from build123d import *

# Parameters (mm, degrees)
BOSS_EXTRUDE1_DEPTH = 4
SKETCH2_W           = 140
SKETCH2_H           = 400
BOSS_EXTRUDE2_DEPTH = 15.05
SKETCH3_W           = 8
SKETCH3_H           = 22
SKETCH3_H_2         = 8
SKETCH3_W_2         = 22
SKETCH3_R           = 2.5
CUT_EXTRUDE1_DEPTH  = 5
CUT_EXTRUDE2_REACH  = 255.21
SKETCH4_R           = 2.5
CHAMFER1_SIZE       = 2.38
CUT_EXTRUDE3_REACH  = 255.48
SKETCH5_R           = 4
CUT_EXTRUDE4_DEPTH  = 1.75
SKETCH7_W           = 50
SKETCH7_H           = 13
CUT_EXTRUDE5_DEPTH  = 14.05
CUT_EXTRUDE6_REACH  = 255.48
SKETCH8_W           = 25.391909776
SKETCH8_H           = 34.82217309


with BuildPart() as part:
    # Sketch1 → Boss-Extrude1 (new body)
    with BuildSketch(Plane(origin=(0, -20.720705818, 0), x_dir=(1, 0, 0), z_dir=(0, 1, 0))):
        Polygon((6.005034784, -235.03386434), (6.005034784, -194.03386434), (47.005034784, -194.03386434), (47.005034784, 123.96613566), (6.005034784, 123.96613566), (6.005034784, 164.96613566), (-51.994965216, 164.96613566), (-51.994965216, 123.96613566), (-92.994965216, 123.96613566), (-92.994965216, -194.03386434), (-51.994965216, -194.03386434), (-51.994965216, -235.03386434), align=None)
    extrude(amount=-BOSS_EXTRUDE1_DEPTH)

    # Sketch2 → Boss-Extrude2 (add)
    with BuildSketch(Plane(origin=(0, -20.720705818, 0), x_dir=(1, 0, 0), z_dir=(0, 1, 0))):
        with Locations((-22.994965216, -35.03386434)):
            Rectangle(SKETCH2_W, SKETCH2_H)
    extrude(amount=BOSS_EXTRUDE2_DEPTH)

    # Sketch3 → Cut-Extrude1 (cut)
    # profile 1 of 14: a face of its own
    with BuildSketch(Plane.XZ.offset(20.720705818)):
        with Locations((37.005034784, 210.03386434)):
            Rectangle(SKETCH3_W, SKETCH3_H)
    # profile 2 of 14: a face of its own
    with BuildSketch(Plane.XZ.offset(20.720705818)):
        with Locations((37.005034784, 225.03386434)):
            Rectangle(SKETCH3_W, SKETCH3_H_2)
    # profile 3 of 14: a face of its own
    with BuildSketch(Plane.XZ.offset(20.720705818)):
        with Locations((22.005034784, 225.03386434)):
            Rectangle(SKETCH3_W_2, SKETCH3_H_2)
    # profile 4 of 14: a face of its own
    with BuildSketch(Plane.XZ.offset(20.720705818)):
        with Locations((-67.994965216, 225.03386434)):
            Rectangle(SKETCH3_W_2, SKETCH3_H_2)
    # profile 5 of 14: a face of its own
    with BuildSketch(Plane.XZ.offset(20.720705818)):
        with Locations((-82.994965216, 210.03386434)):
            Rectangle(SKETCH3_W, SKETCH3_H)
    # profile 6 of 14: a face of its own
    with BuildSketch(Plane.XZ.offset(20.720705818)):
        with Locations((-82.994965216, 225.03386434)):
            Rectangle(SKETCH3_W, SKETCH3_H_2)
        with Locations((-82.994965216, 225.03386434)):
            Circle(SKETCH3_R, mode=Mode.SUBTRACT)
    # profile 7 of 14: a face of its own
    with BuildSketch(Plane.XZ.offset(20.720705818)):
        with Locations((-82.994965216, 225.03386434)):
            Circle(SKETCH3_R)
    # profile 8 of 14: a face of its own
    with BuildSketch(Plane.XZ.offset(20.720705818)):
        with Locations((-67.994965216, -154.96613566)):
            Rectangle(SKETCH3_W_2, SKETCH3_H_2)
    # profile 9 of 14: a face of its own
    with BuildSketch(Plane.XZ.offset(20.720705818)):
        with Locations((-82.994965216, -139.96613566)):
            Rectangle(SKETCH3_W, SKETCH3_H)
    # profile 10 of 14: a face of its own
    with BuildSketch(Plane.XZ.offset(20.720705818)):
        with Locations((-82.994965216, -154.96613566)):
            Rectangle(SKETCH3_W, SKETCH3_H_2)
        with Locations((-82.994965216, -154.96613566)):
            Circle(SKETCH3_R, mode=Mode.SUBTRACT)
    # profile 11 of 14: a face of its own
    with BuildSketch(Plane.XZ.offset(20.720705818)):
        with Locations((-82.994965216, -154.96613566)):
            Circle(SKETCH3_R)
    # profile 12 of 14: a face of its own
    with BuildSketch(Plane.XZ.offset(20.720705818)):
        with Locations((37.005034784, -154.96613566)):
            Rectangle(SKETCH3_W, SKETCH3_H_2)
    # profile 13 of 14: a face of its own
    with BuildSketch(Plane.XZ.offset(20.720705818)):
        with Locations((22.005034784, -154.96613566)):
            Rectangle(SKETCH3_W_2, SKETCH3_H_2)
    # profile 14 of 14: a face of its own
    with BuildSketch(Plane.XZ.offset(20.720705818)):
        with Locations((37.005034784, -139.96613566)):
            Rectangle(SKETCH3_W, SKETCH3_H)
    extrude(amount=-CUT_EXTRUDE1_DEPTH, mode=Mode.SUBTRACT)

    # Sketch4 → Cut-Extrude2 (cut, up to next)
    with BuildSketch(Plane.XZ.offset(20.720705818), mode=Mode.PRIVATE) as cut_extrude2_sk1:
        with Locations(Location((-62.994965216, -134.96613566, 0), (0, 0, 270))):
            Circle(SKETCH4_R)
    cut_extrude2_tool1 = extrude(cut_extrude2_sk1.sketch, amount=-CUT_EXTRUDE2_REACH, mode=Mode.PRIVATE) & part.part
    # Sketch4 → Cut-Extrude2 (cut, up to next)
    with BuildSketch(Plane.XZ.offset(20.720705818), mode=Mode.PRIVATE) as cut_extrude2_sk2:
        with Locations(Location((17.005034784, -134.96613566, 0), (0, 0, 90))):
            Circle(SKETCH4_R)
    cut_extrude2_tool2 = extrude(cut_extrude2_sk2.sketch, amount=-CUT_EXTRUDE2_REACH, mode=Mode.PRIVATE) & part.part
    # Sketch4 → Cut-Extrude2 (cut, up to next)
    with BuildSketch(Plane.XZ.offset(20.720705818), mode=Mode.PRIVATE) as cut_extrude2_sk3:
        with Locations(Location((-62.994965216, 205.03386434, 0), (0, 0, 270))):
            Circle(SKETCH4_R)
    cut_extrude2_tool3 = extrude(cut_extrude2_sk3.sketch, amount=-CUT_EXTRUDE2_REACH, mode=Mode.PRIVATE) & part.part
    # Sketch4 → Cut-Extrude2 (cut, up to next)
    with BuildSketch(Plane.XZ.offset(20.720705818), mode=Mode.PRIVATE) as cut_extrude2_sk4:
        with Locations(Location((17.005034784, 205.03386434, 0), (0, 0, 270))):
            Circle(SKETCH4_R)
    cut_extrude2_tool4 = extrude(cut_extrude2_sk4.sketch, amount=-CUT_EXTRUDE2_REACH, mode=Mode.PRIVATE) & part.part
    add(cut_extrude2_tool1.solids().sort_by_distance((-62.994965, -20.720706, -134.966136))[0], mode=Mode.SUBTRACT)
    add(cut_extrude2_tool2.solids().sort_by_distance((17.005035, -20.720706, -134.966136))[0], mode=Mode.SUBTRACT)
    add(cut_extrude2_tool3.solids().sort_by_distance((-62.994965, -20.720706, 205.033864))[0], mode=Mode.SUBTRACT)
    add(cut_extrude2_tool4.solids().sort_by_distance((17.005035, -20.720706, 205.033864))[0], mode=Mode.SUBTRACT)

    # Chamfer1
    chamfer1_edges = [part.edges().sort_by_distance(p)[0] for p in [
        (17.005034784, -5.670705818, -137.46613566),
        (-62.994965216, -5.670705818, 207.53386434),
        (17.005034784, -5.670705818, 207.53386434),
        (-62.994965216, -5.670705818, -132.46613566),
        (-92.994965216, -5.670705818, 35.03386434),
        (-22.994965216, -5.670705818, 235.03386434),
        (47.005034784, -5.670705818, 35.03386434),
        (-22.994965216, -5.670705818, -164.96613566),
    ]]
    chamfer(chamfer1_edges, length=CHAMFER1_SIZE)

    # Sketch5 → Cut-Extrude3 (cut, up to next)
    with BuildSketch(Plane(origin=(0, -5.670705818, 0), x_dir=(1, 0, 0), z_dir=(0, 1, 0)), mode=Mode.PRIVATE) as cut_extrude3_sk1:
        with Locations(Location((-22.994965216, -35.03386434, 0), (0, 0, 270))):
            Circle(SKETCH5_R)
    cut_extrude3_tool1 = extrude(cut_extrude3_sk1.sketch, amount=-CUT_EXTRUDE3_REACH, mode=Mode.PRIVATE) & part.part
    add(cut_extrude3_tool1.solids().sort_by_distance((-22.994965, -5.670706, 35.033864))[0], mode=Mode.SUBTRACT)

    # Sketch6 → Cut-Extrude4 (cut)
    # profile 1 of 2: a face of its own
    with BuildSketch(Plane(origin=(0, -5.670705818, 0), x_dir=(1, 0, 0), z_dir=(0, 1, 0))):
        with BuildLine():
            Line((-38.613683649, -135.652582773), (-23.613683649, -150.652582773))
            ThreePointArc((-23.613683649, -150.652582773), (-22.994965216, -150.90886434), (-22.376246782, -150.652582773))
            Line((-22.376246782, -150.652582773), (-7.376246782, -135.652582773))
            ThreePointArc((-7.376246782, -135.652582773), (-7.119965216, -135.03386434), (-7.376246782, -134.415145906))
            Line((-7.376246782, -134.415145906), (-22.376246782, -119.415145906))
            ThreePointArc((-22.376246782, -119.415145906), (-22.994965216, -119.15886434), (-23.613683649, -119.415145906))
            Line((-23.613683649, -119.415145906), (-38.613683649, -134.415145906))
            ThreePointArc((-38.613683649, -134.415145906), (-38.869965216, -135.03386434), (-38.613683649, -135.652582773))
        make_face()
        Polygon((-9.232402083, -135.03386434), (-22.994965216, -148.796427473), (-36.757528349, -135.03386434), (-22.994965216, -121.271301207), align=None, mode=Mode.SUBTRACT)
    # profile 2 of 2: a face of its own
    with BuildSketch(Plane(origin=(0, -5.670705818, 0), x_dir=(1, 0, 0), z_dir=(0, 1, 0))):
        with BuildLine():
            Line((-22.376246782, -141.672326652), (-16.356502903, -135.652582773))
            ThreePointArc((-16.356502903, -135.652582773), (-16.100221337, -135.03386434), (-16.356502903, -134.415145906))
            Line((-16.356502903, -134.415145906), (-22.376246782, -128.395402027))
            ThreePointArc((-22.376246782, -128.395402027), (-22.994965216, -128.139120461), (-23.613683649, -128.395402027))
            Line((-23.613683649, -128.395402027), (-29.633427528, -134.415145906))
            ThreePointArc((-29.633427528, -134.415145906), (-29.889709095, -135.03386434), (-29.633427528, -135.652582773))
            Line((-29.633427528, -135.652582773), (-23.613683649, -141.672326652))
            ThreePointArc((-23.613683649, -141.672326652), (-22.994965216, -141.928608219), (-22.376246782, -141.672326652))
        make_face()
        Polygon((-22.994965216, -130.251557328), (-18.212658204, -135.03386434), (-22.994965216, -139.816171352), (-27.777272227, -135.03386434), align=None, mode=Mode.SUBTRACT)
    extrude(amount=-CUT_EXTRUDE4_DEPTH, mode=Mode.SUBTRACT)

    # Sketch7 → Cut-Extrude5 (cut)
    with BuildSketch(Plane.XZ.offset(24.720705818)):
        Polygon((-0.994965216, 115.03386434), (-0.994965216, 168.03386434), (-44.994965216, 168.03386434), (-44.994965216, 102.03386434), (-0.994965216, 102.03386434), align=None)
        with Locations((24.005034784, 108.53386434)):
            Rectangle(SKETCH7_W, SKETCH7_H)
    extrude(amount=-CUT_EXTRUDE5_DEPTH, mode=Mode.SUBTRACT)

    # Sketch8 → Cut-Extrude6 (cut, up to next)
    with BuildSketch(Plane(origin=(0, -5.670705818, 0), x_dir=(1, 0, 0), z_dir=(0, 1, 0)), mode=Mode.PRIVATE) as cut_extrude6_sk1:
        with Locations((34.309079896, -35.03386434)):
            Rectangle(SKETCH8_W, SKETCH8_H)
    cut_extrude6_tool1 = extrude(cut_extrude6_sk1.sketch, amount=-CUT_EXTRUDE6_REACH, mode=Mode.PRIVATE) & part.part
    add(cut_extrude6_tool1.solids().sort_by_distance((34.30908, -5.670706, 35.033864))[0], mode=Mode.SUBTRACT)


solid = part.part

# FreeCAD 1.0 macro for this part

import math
import FreeCAD as App
import Part
import Sketcher


def edges_at(feature, points):
    """Names of the edges that pass closest to the given points."""
    edges = feature.Shape.Edges
    near = lambda p: min(range(len(edges)), key=lambda i: edges[i].distToShape(Part.Vertex(*p))[0])
    return sorted({f"Edge{near(p) + 1}" for p in points})

doc = App.newDocument("Part")
body = doc.addObject("PartDesign::Body", "Body")

sketch1 = doc.addObject("Sketcher::SketchObject", "Sketch")
body.addObject(sketch1)
sketch1.AttachmentSupport = (doc.XZ_Plane, [""])
sketch1.MapMode = "FlatFace"
sketch1.AttachmentOffset = App.Placement(App.Vector(0, 0, 20.720706), App.Rotation())
sketch1.addGeometry(Part.LineSegment(App.Vector(6.005035, 235.033864, 0), App.Vector(6.005035, 194.033864, 0)), False)
sketch1.addGeometry(Part.LineSegment(App.Vector(6.005035, 194.033864, 0), App.Vector(47.005035, 194.033864, 0)), False)
sketch1.addGeometry(Part.LineSegment(App.Vector(47.005035, 194.033864, 0), App.Vector(47.005035, -123.966136, 0)), False)
sketch1.addGeometry(Part.LineSegment(App.Vector(47.005035, -123.966136, 0), App.Vector(6.005035, -123.966136, 0)), False)
sketch1.addGeometry(Part.LineSegment(App.Vector(6.005035, -123.966136, 0), App.Vector(6.005035, -164.966136, 0)), False)
sketch1.addGeometry(Part.LineSegment(App.Vector(6.005035, -164.966136, 0), App.Vector(-51.994965, -164.966136, 0)), False)
sketch1.addGeometry(Part.LineSegment(App.Vector(-51.994965, -164.966136, 0), App.Vector(-51.994965, -123.966136, 0)), False)
sketch1.addGeometry(Part.LineSegment(App.Vector(-51.994965, -123.966136, 0), App.Vector(-92.994965, -123.966136, 0)), False)
sketch1.addGeometry(Part.LineSegment(App.Vector(-92.994965, -123.966136, 0), App.Vector(-92.994965, 194.033864, 0)), False)
sketch1.addGeometry(Part.LineSegment(App.Vector(-92.994965, 194.033864, 0), App.Vector(-51.994965, 194.033864, 0)), False)
sketch1.addGeometry(Part.LineSegment(App.Vector(-51.994965, 194.033864, 0), App.Vector(-51.994965, 235.033864, 0)), False)
sketch1.addGeometry(Part.LineSegment(App.Vector(-51.994965, 235.033864, 0), App.Vector(6.005035, 235.033864, 0)), False)
sketch1.addConstraint(Sketcher.Constraint("Coincident", 0, 2, 1, 1))
sketch1.addConstraint(Sketcher.Constraint("Coincident", 1, 2, 2, 1))
sketch1.addConstraint(Sketcher.Constraint("Coincident", 2, 2, 3, 1))
sketch1.addConstraint(Sketcher.Constraint("Coincident", 3, 2, 4, 1))
sketch1.addConstraint(Sketcher.Constraint("Coincident", 4, 2, 5, 1))
sketch1.addConstraint(Sketcher.Constraint("Coincident", 5, 2, 6, 1))
sketch1.addConstraint(Sketcher.Constraint("Coincident", 6, 2, 7, 1))
sketch1.addConstraint(Sketcher.Constraint("Coincident", 7, 2, 8, 1))
sketch1.addConstraint(Sketcher.Constraint("Coincident", 8, 2, 9, 1))
sketch1.addConstraint(Sketcher.Constraint("Coincident", 9, 2, 10, 1))
sketch1.addConstraint(Sketcher.Constraint("Coincident", 10, 2, 11, 1))
sketch1.addConstraint(Sketcher.Constraint("Coincident", 11, 2, 0, 1))
sketch1.addConstraint(Sketcher.Constraint("Vertical", 0))
sketch1.addConstraint(Sketcher.Constraint("Horizontal", 1))
sketch1.addConstraint(Sketcher.Constraint("Vertical", 2))
sketch1.addConstraint(Sketcher.Constraint("Horizontal", 3))
sketch1.addConstraint(Sketcher.Constraint("Vertical", 4))
sketch1.addConstraint(Sketcher.Constraint("Horizontal", 5))
sketch1.addConstraint(Sketcher.Constraint("Vertical", 6))
sketch1.addConstraint(Sketcher.Constraint("Horizontal", 7))
sketch1.addConstraint(Sketcher.Constraint("Vertical", 8))
sketch1.addConstraint(Sketcher.Constraint("Horizontal", 9))
sketch1.addConstraint(Sketcher.Constraint("Vertical", 10))
sketch1.addConstraint(Sketcher.Constraint("Horizontal", 11))
sketch1.addConstraint(Sketcher.Constraint("Horizontal", 3, 2, 6, 2))
sketch1.addConstraint(Sketcher.Constraint("Horizontal", 1, 2, 8, 2))
sketch1.addConstraint(Sketcher.Constraint("Vertical", 0, 2, 3, 2))
sketch1.addConstraint(Sketcher.Constraint("Vertical", 6, 2, 9, 2))
sketch1.addConstraint(Sketcher.Constraint("Equal", 3, 7))
sketch1.addConstraint(Sketcher.Constraint("Equal", 9, 0))
sketch1.addConstraint(Sketcher.Constraint("Equal", 0, 4))
sketch1.addConstraint(Sketcher.Constraint("DistanceX", 1, 1, 1, 2, 41.0))
sketch1.addConstraint(Sketcher.Constraint("DistanceX", 5, 2, 5, 1, 58.0))
sketch1.addConstraint(Sketcher.Constraint("DistanceY", 2, 2, 2, 1, 318.0))
sketch1.addConstraint(Sketcher.Constraint("DistanceX", -1, 1, 0, 2, 6.005035))
sketch1.addConstraint(Sketcher.Constraint("DistanceY", -1, 1, 0, 2, 194.033864))
pad1 = doc.addObject("PartDesign::Pad", "Pad")
body.addObject(pad1)
pad1.Profile = sketch1
pad1.Length = 4

sketch2 = doc.addObject("Sketcher::SketchObject", "Sketch001")
body.addObject(sketch2)
sketch2.AttachmentSupport = (doc.XZ_Plane, [""])
sketch2.MapMode = "FlatFace"
sketch2.AttachmentOffset = App.Placement(App.Vector(0, 0, 20.720706), App.Rotation())
sketch2.addGeometry(Part.LineSegment(App.Vector(-92.994965, -164.966136, 0), App.Vector(-92.994965, 235.033864, 0)), False)
sketch2.addGeometry(Part.LineSegment(App.Vector(-92.994965, 235.033864, 0), App.Vector(47.005035, 235.033864, 0)), False)
sketch2.addGeometry(Part.LineSegment(App.Vector(47.005035, 235.033864, 0), App.Vector(47.005035, -164.966136, 0)), False)
sketch2.addGeometry(Part.LineSegment(App.Vector(47.005035, -164.966136, 0), App.Vector(-92.994965, -164.966136, 0)), False)
sketch2.addConstraint(Sketcher.Constraint("Coincident", 0, 2, 1, 1))
sketch2.addConstraint(Sketcher.Constraint("Coincident", 1, 2, 2, 1))
sketch2.addConstraint(Sketcher.Constraint("Coincident", 2, 2, 3, 1))
sketch2.addConstraint(Sketcher.Constraint("Coincident", 3, 2, 0, 1))
sketch2.addConstraint(Sketcher.Constraint("Vertical", 0))
sketch2.addConstraint(Sketcher.Constraint("Horizontal", 1))
sketch2.addConstraint(Sketcher.Constraint("Vertical", 2))
sketch2.addConstraint(Sketcher.Constraint("Horizontal", 3))
sketch2.addConstraint(Sketcher.Constraint("DistanceX", 1, 1, 1, 2, 140.0))
sketch2.addConstraint(Sketcher.Constraint("DistanceY", 0, 1, 0, 2, 400.0))
sketch2.addConstraint(Sketcher.Constraint("DistanceX", 0, 2, -1, 1, 92.994965))
sketch2.addConstraint(Sketcher.Constraint("DistanceY", -1, 1, 0, 2, 235.033864))
pad2 = doc.addObject("PartDesign::Pad", "Pad001")
body.addObject(pad2)
pad2.Profile = sketch2
pad2.Length = 15.05
pad2.Reversed = True

sketch3 = doc.addObject("Sketcher::SketchObject", "Sketch002")
body.addObject(sketch3)
sketch3.AttachmentSupport = (doc.XZ_Plane, [""])
sketch3.MapMode = "FlatFace"
sketch3.AttachmentOffset = App.Placement(App.Vector(0, 0, 20.720706), App.Rotation())
sketch3.addGeometry(Part.LineSegment(App.Vector(33.005035, 221.033864, 0), App.Vector(33.005035, 199.033864, 0)), False)
sketch3.addGeometry(Part.LineSegment(App.Vector(33.005035, 199.033864, 0), App.Vector(41.005035, 199.033864, 0)), False)
sketch3.addGeometry(Part.LineSegment(App.Vector(41.005035, 199.033864, 0), App.Vector(41.005035, 229.033864, 0)), False)
sketch3.addGeometry(Part.LineSegment(App.Vector(41.005035, 229.033864, 0), App.Vector(11.005035, 229.033864, 0)), False)
sketch3.addGeometry(Part.LineSegment(App.Vector(11.005035, 229.033864, 0), App.Vector(11.005035, 221.033864, 0)), False)
sketch3.addGeometry(Part.LineSegment(App.Vector(11.005035, 221.033864, 0), App.Vector(33.005035, 221.033864, 0)), False)
sketch3.addGeometry(Part.LineSegment(App.Vector(-78.994965, 221.033864, 0), App.Vector(-56.994965, 221.033864, 0)), False)
sketch3.addGeometry(Part.LineSegment(App.Vector(-56.994965, 221.033864, 0), App.Vector(-56.994965, 229.033864, 0)), False)
sketch3.addGeometry(Part.LineSegment(App.Vector(-56.994965, 229.033864, 0), App.Vector(-86.994965, 229.033864, 0)), False)
sketch3.addGeometry(Part.LineSegment(App.Vector(-86.994965, 229.033864, 0), App.Vector(-86.994965, 199.033864, 0)), False)
sketch3.addGeometry(Part.LineSegment(App.Vector(-86.994965, 199.033864, 0), App.Vector(-78.994965, 199.033864, 0)), False)
sketch3.addGeometry(Part.LineSegment(App.Vector(-78.994965, 199.033864, 0), App.Vector(-78.994965, 221.033864, 0)), False)
sketch3.addGeometry(Part.LineSegment(App.Vector(-56.994965, -158.966136, 0), App.Vector(-56.994965, -150.966136, 0)), False)
sketch3.addGeometry(Part.LineSegment(App.Vector(-56.994965, -150.966136, 0), App.Vector(-78.994965, -150.966136, 0)), False)
sketch3.addGeometry(Part.LineSegment(App.Vector(-78.994965, -150.966136, 0), App.Vector(-78.994965, -128.966136, 0)), False)
sketch3.addGeometry(Part.LineSegment(App.Vector(-78.994965, -128.966136, 0), App.Vector(-86.994965, -128.966136, 0)), False)
sketch3.addGeometry(Part.LineSegment(App.Vector(-86.994965, -128.966136, 0), App.Vector(-86.994965, -158.966136, 0)), False)
sketch3.addGeometry(Part.LineSegment(App.Vector(-86.994965, -158.966136, 0), App.Vector(-56.994965, -158.966136, 0)), False)
sketch3.addGeometry(Part.LineSegment(App.Vector(41.005035, -158.966136, 0), App.Vector(41.005035, -128.966136, 0)), False)
sketch3.addGeometry(Part.LineSegment(App.Vector(41.005035, -128.966136, 0), App.Vector(33.005035, -128.966136, 0)), False)
sketch3.addGeometry(Part.LineSegment(App.Vector(33.005035, -128.966136, 0), App.Vector(33.005035, -150.966136, 0)), False)
sketch3.addGeometry(Part.LineSegment(App.Vector(33.005035, -150.966136, 0), App.Vector(11.005035, -150.966136, 0)), False)
sketch3.addGeometry(Part.LineSegment(App.Vector(11.005035, -150.966136, 0), App.Vector(11.005035, -158.966136, 0)), False)
sketch3.addGeometry(Part.LineSegment(App.Vector(11.005035, -158.966136, 0), App.Vector(41.005035, -158.966136, 0)), False)
sketch3.addConstraint(Sketcher.Constraint("Coincident", 0, 2, 1, 1))
sketch3.addConstraint(Sketcher.Constraint("Coincident", 1, 2, 2, 1))
sketch3.addConstraint(Sketcher.Constraint("Coincident", 2, 2, 3, 1))
sketch3.addConstraint(Sketcher.Constraint("Coincident", 3, 2, 4, 1))
sketch3.addConstraint(Sketcher.Constraint("Coincident", 4, 2, 5, 1))
sketch3.addConstraint(Sketcher.Constraint("Coincident", 5, 2, 0, 1))
sketch3.addConstraint(Sketcher.Constraint("Coincident", 6, 2, 7, 1))
sketch3.addConstraint(Sketcher.Constraint("Coincident", 7, 2, 8, 1))
sketch3.addConstraint(Sketcher.Constraint("Coincident", 8, 2, 9, 1))
sketch3.addConstraint(Sketcher.Constraint("Coincident", 9, 2, 10, 1))
sketch3.addConstraint(Sketcher.Constraint("Coincident", 10, 2, 11, 1))
sketch3.addConstraint(Sketcher.Constraint("Coincident", 11, 2, 6, 1))
sketch3.addConstraint(Sketcher.Constraint("Coincident", 12, 2, 13, 1))
sketch3.addConstraint(Sketcher.Constraint("Coincident", 13, 2, 14, 1))
sketch3.addConstraint(Sketcher.Constraint("Coincident", 14, 2, 15, 1))
sketch3.addConstraint(Sketcher.Constraint("Coincident", 15, 2, 16, 1))
sketch3.addConstraint(Sketcher.Constraint("Coincident", 16, 2, 17, 1))
sketch3.addConstraint(Sketcher.Constraint("Coincident", 17, 2, 12, 1))
sketch3.addConstraint(Sketcher.Constraint("Coincident", 18, 2, 19, 1))
sketch3.addConstraint(Sketcher.Constraint("Coincident", 19, 2, 20, 1))
sketch3.addConstraint(Sketcher.Constraint("Coincident", 20, 2, 21, 1))
sketch3.addConstraint(Sketcher.Constraint("Coincident", 21, 2, 22, 1))
sketch3.addConstraint(Sketcher.Constraint("Coincident", 22, 2, 23, 1))
sketch3.addConstraint(Sketcher.Constraint("Coincident", 23, 2, 18, 1))
sketch3.addConstraint(Sketcher.Constraint("Vertical", 0))
sketch3.addConstraint(Sketcher.Constraint("Horizontal", 1))
sketch3.addConstraint(Sketcher.Constraint("Vertical", 2))
sketch3.addConstraint(Sketcher.Constraint("Horizontal", 3))
sketch3.addConstraint(Sketcher.Constraint("Vertical", 4))
sketch3.addConstraint(Sketcher.Constraint("Horizontal", 5))
sketch3.addConstraint(Sketcher.Constraint("Horizontal", 6))
sketch3.addConstraint(Sketcher.Constraint("Vertical", 7))
sketch3.addConstraint(Sketcher.Constraint("Horizontal", 8))
sketch3.addConstraint(Sketcher.Constraint("Vertical", 9))
sketch3.addConstraint(Sketcher.Constraint("Horizontal", 10))
sketch3.addConstraint(Sketcher.Constraint("Vertical", 11))
sketch3.addConstraint(Sketcher.Constraint("Vertical", 12))
sketch3.addConstraint(Sketcher.Constraint("Horizontal", 13))
sketch3.addConstraint(Sketcher.Constraint("Vertical", 14))
sketch3.addConstraint(Sketcher.Constraint("Horizontal", 15))
sketch3.addConstraint(Sketcher.Constraint("Vertical", 16))
sketch3.addConstraint(Sketcher.Constraint("Horizontal", 17))
sketch3.addConstraint(Sketcher.Constraint("Vertical", 18))
sketch3.addConstraint(Sketcher.Constraint("Horizontal", 19))
sketch3.addConstraint(Sketcher.Constraint("Vertical", 20))
sketch3.addConstraint(Sketcher.Constraint("Horizontal", 21))
sketch3.addConstraint(Sketcher.Constraint("Vertical", 22))
sketch3.addConstraint(Sketcher.Constraint("Horizontal", 23))
sketch3.addConstraint(Sketcher.Constraint("Horizontal", 5, 2, 6, 2))
sketch3.addConstraint(Sketcher.Constraint("Horizontal", 3, 2, 7, 2))
sketch3.addConstraint(Sketcher.Constraint("Horizontal", 1, 2, 9, 2))
sketch3.addConstraint(Sketcher.Constraint("Horizontal", 15, 2, 18, 2))
sketch3.addConstraint(Sketcher.Constraint("Horizontal", 13, 2, 20, 2))
sketch3.addConstraint(Sketcher.Constraint("Horizontal", 17, 2, 22, 2))
sketch3.addConstraint(Sketcher.Constraint("Vertical", 7, 2, 12, 2))
sketch3.addConstraint(Sketcher.Constraint("Vertical", 11, 2, 13, 2))
sketch3.addConstraint(Sketcher.Constraint("Vertical", 9, 2, 15, 2))
sketch3.addConstraint(Sketcher.Constraint("Vertical", 2, 2, 18, 2))
sketch3.addConstraint(Sketcher.Constraint("Vertical", 5, 2, 19, 2))
sketch3.addConstraint(Sketcher.Constraint("Vertical", 4, 2, 21, 2))
sketch3.addConstraint(Sketcher.Constraint("Equal", 5, 6))
sketch3.addConstraint(Sketcher.Constraint("Equal", 3, 8))
sketch3.addConstraint(Sketcher.Constraint("Equal", 21, 0))
sketch3.addConstraint(Sketcher.Constraint("Equal", 23, 2))
sketch3.addConstraint(Sketcher.Constraint("Equal", 7, 12))
sketch3.addConstraint(Sketcher.Constraint("Equal", 11, 14))
sketch3.addConstraint(Sketcher.Constraint("DistanceX", 1, 1, 1, 2, 8.0))
sketch3.addConstraint(Sketcher.Constraint("DistanceX", 3, 2, 3, 1, 30.0))
sketch3.addConstraint(Sketcher.Constraint("DistanceX", 6, 2, 4, 2, 68.0))
sketch3.addConstraint(Sketcher.Constraint("DistanceY", 12, 2, 10, 2, 350.0))
sketch3.addConstraint(Sketcher.Constraint("DistanceX", -1, 1, 0, 2, 33.005035))
sketch3.addConstraint(Sketcher.Constraint("DistanceY", -1, 1, 0, 2, 199.033864))
pocket1 = doc.addObject("PartDesign::Pocket", "Pocket")
body.addObject(pocket1)
pocket1.Profile = sketch3
pocket1.Length = 5

sketch4 = doc.addObject("Sketcher::SketchObject", "Sketch003")
body.addObject(sketch4)
sketch4.AttachmentSupport = (doc.XZ_Plane, [""])
sketch4.MapMode = "FlatFace"
sketch4.AttachmentOffset = App.Placement(App.Vector(0, 0, 20.720706), App.Rotation())
sketch4.addGeometry(Part.Circle(App.Vector(-62.994965, -134.966136, 0), App.Vector(0, 0, 1), 2.5), False)
sketch4.addConstraint(Sketcher.Constraint("Diameter", 0, 5.0))
sketch4.addConstraint(Sketcher.Constraint("DistanceX", 0, 3, -1, 1, 62.994965))
sketch4.addConstraint(Sketcher.Constraint("DistanceY", 0, 3, -1, 1, 134.966136))
pocket2 = doc.addObject("PartDesign::Pocket", "Pocket001")
body.addObject(pocket2)
pocket2.Profile = sketch4
pocket2.Type = "UpToFirst"

sketch5 = doc.addObject("Sketcher::SketchObject", "Sketch004")
body.addObject(sketch5)
sketch5.AttachmentSupport = (doc.XZ_Plane, [""])
sketch5.MapMode = "FlatFace"
sketch5.AttachmentOffset = App.Placement(App.Vector(0, 0, 20.720706), App.Rotation())
sketch5.addGeometry(Part.Circle(App.Vector(17.005035, -134.966136, 0), App.Vector(0, 0, 1), 2.5), False)
sketch5.addConstraint(Sketcher.Constraint("Diameter", 0, 5.0))
sketch5.addConstraint(Sketcher.Constraint("DistanceX", -1, 1, 0, 3, 17.005035))
sketch5.addConstraint(Sketcher.Constraint("DistanceY", 0, 3, -1, 1, 134.966136))
pocket3 = doc.addObject("PartDesign::Pocket", "Pocket002")
body.addObject(pocket3)
pocket3.Profile = sketch5
pocket3.Type = "UpToFirst"

sketch6 = doc.addObject("Sketcher::SketchObject", "Sketch005")
body.addObject(sketch6)
sketch6.AttachmentSupport = (doc.XZ_Plane, [""])
sketch6.MapMode = "FlatFace"
sketch6.AttachmentOffset = App.Placement(App.Vector(0, 0, 20.720706), App.Rotation())
sketch6.addGeometry(Part.Circle(App.Vector(-62.994965, 205.033864, 0), App.Vector(0, 0, 1), 2.5), False)
sketch6.addConstraint(Sketcher.Constraint("Diameter", 0, 5.0))
sketch6.addConstraint(Sketcher.Constraint("DistanceX", 0, 3, -1, 1, 62.994965))
sketch6.addConstraint(Sketcher.Constraint("DistanceY", -1, 1, 0, 3, 205.033864))
pocket4 = doc.addObject("PartDesign::Pocket", "Pocket003")
body.addObject(pocket4)
pocket4.Profile = sketch6
pocket4.Type = "UpToFirst"

sketch7 = doc.addObject("Sketcher::SketchObject", "Sketch006")
body.addObject(sketch7)
sketch7.AttachmentSupport = (doc.XZ_Plane, [""])
sketch7.MapMode = "FlatFace"
sketch7.AttachmentOffset = App.Placement(App.Vector(0, 0, 20.720706), App.Rotation())
sketch7.addGeometry(Part.Circle(App.Vector(17.005035, 205.033864, 0), App.Vector(0, 0, 1), 2.5), False)
sketch7.addConstraint(Sketcher.Constraint("Diameter", 0, 5.0))
sketch7.addConstraint(Sketcher.Constraint("DistanceX", -1, 1, 0, 3, 17.005035))
sketch7.addConstraint(Sketcher.Constraint("DistanceY", -1, 1, 0, 3, 205.033864))
pocket5 = doc.addObject("PartDesign::Pocket", "Pocket004")
body.addObject(pocket5)
pocket5.Profile = sketch7
pocket5.Type = "UpToFirst"
doc.recompute()

chamfer = doc.addObject("PartDesign::Chamfer", "Chamfer")
body.addObject(chamfer)
chamfer.Base = (pocket5, edges_at(pocket5, [
    (17.005, -5.671, -137.466),
    (-62.995, -5.671, 207.534),
    (17.005, -5.671, 207.534),
    (-62.995, -5.671, -132.466),
    (-92.995, -5.671, 35.034),
    (-22.995, -5.671, 235.034),
    (47.005, -5.671, 35.034),
    (-22.995, -5.671, -164.966),
]))
chamfer.Size = 2.38

sketch8 = doc.addObject("Sketcher::SketchObject", "Sketch007")
body.addObject(sketch8)
sketch8.AttachmentSupport = (doc.XZ_Plane, [""])
sketch8.MapMode = "FlatFace"
sketch8.AttachmentOffset = App.Placement(App.Vector(0, 0, 5.670706), App.Rotation())
sketch8.addGeometry(Part.Circle(App.Vector(-22.994965, 35.033864, 0), App.Vector(0, 0, 1), 4), False)
sketch8.addConstraint(Sketcher.Constraint("Diameter", 0, 8.0))
sketch8.addConstraint(Sketcher.Constraint("DistanceX", 0, 3, -1, 1, 22.994965))
sketch8.addConstraint(Sketcher.Constraint("DistanceY", -1, 1, 0, 3, 35.033864))
pocket6 = doc.addObject("PartDesign::Pocket", "Pocket005")
body.addObject(pocket6)
pocket6.Profile = sketch8
pocket6.Type = "UpToFirst"
pocket6.Reversed = True

sketch9 = doc.addObject("Sketcher::SketchObject", "Sketch008")
body.addObject(sketch9)
sketch9.AttachmentSupport = (doc.XZ_Plane, [""])
sketch9.MapMode = "FlatFace"
sketch9.AttachmentOffset = App.Placement(App.Vector(0, 0, 5.670706), App.Rotation())
sketch9.addGeometry(Part.LineSegment(App.Vector(-38.613684, 135.652583, 0), App.Vector(-23.613684, 150.652583, 0)), False)
sketch9.addGeometry(Part.ArcOfCircle(Part.Circle(App.Vector(-22.994965, 150.033864, 0), App.Vector(0, 0, 1), 0.875), math.radians(45), math.radians(135)), False)
sketch9.addGeometry(Part.LineSegment(App.Vector(-22.376247, 150.652583, 0), App.Vector(-7.376247, 135.652583, 0)), False)
sketch9.addGeometry(Part.ArcOfCircle(Part.Circle(App.Vector(-7.994965, 135.033864, 0), App.Vector(0, 0, 1), 0.875), math.radians(-45), math.radians(45)), False)
sketch9.addGeometry(Part.LineSegment(App.Vector(-7.376247, 134.415146, 0), App.Vector(-22.376247, 119.415146, 0)), False)
sketch9.addGeometry(Part.ArcOfCircle(Part.Circle(App.Vector(-22.994965, 120.033864, 0), App.Vector(0, 0, 1), 0.875), math.radians(-135), math.radians(-45)), False)
sketch9.addGeometry(Part.LineSegment(App.Vector(-23.613684, 119.415146, 0), App.Vector(-38.613684, 134.415146, 0)), False)
sketch9.addGeometry(Part.ArcOfCircle(Part.Circle(App.Vector(-37.994965, 135.033864, 0), App.Vector(0, 0, 1), 0.875), math.radians(135), math.radians(225)), False)
sketch9.addGeometry(Part.LineSegment(App.Vector(-22.994965, 121.271301, 0), App.Vector(-9.232402, 135.033864, 0)), False)
sketch9.addGeometry(Part.LineSegment(App.Vector(-9.232402, 135.033864, 0), App.Vector(-22.994965, 148.796427, 0)), False)
sketch9.addGeometry(Part.LineSegment(App.Vector(-22.994965, 148.796427, 0), App.Vector(-36.757528, 135.033864, 0)), False)
sketch9.addGeometry(Part.LineSegment(App.Vector(-36.757528, 135.033864, 0), App.Vector(-22.994965, 121.271301, 0)), False)
sketch9.addGeometry(Part.LineSegment(App.Vector(-22.376247, 141.672327, 0), App.Vector(-16.356503, 135.652583, 0)), False)
sketch9.addGeometry(Part.ArcOfCircle(Part.Circle(App.Vector(-16.975221, 135.033864, 0), App.Vector(0, 0, 1), 0.875), math.radians(-45), math.radians(45)), False)
sketch9.addGeometry(Part.LineSegment(App.Vector(-16.356503, 134.415146, 0), App.Vector(-22.376247, 128.395402, 0)), False)
sketch9.addGeometry(Part.ArcOfCircle(Part.Circle(App.Vector(-22.994965, 129.01412, 0), App.Vector(0, 0, 1), 0.875), math.radians(-135), math.radians(-45)), False)
sketch9.addGeometry(Part.LineSegment(App.Vector(-23.613684, 128.395402, 0), App.Vector(-29.633428, 134.415146, 0)), False)
sketch9.addGeometry(Part.ArcOfCircle(Part.Circle(App.Vector(-29.014709, 135.033864, 0), App.Vector(0, 0, 1), 0.875), math.radians(135), math.radians(225)), False)
sketch9.addGeometry(Part.LineSegment(App.Vector(-29.633428, 135.652583, 0), App.Vector(-23.613684, 141.672327, 0)), False)
sketch9.addGeometry(Part.ArcOfCircle(Part.Circle(App.Vector(-22.994965, 141.053608, 0), App.Vector(0, 0, 1), 0.875), math.radians(45), math.radians(135)), False)
sketch9.addGeometry(Part.LineSegment(App.Vector(-27.777272, 135.033864, 0), App.Vector(-22.994965, 130.251557, 0)), False)
sketch9.addGeometry(Part.LineSegment(App.Vector(-22.994965, 130.251557, 0), App.Vector(-18.212658, 135.033864, 0)), False)
sketch9.addGeometry(Part.LineSegment(App.Vector(-18.212658, 135.033864, 0), App.Vector(-22.994965, 139.816171, 0)), False)
sketch9.addGeometry(Part.LineSegment(App.Vector(-22.994965, 139.816171, 0), App.Vector(-27.777272, 135.033864, 0)), False)
sketch9.addConstraint(Sketcher.Constraint("Tangent", 0, 2, 1, 2))
sketch9.addConstraint(Sketcher.Constraint("Tangent", 1, 1, 2, 1))
sketch9.addConstraint(Sketcher.Constraint("Tangent", 2, 2, 3, 2))
sketch9.addConstraint(Sketcher.Constraint("Tangent", 3, 1, 4, 1))
sketch9.addConstraint(Sketcher.Constraint("Tangent", 4, 2, 5, 2))
sketch9.addConstraint(Sketcher.Constraint("Tangent", 5, 1, 6, 1))
sketch9.addConstraint(Sketcher.Constraint("Tangent", 6, 2, 7, 2))
sketch9.addConstraint(Sketcher.Constraint("Tangent", 7, 1, 0, 1))
sketch9.addConstraint(Sketcher.Constraint("Coincident", 8, 2, 9, 1))
sketch9.addConstraint(Sketcher.Constraint("Coincident", 9, 2, 10, 1))
sketch9.addConstraint(Sketcher.Constraint("Coincident", 10, 2, 11, 1))
sketch9.addConstraint(Sketcher.Constraint("Coincident", 11, 2, 8, 1))
sketch9.addConstraint(Sketcher.Constraint("Tangent", 12, 2, 13, 2))
sketch9.addConstraint(Sketcher.Constraint("Tangent", 13, 1, 14, 1))
sketch9.addConstraint(Sketcher.Constraint("Tangent", 14, 2, 15, 2))
sketch9.addConstraint(Sketcher.Constraint("Tangent", 15, 1, 16, 1))
sketch9.addConstraint(Sketcher.Constraint("Tangent", 16, 2, 17, 2))
sketch9.addConstraint(Sketcher.Constraint("Tangent", 17, 1, 18, 1))
sketch9.addConstraint(Sketcher.Constraint("Tangent", 18, 2, 19, 2))
sketch9.addConstraint(Sketcher.Constraint("Tangent", 19, 1, 12, 1))
sketch9.addConstraint(Sketcher.Constraint("Coincident", 20, 2, 21, 1))
sketch9.addConstraint(Sketcher.Constraint("Coincident", 21, 2, 22, 1))
sketch9.addConstraint(Sketcher.Constraint("Coincident", 22, 2, 23, 1))
sketch9.addConstraint(Sketcher.Constraint("Coincident", 23, 2, 20, 1))
sketch9.addConstraint(Sketcher.Constraint("Equal", 1, 3))
sketch9.addConstraint(Sketcher.Constraint("Equal", 3, 5))
sketch9.addConstraint(Sketcher.Constraint("Equal", 5, 7))
sketch9.addConstraint(Sketcher.Constraint("Equal", 7, 13))
sketch9.addConstraint(Sketcher.Constraint("Equal", 13, 15))
sketch9.addConstraint(Sketcher.Constraint("Equal", 15, 17))
sketch9.addConstraint(Sketcher.Constraint("Equal", 17, 19))
sketch9.addConstraint(Sketcher.Constraint("Perpendicular", 0, 2))
sketch9.addConstraint(Sketcher.Constraint("Perpendicular", 2, 4))
sketch9.addConstraint(Sketcher.Constraint("Perpendicular", 4, 6))
sketch9.addConstraint(Sketcher.Constraint("Perpendicular", 6, 8))
sketch9.addConstraint(Sketcher.Constraint("Perpendicular", 8, 9))
sketch9.addConstraint(Sketcher.Constraint("Perpendicular", 9, 10))
sketch9.addConstraint(Sketcher.Constraint("Perpendicular", 10, 11))
sketch9.addConstraint(Sketcher.Constraint("Parallel", 11, 12))
sketch9.addConstraint(Sketcher.Constraint("Perpendicular", 12, 14))
sketch9.addConstraint(Sketcher.Constraint("Perpendicular", 14, 16))
sketch9.addConstraint(Sketcher.Constraint("Perpendicular", 16, 18))
sketch9.addConstraint(Sketcher.Constraint("Perpendicular", 18, 20))
sketch9.addConstraint(Sketcher.Constraint("Perpendicular", 20, 21))
sketch9.addConstraint(Sketcher.Constraint("Perpendicular", 21, 22))
sketch9.addConstraint(Sketcher.Constraint("Perpendicular", 22, 23))
sketch9.addConstraint(Sketcher.Constraint("Horizontal", 3, 3, 7, 3))
sketch9.addConstraint(Sketcher.Constraint("Horizontal", 7, 3, 13, 3))
sketch9.addConstraint(Sketcher.Constraint("Horizontal", 13, 3, 17, 3))
sketch9.addConstraint(Sketcher.Constraint("Horizontal", 0, 2, 1, 1))
sketch9.addConstraint(Sketcher.Constraint("Horizontal", 17, 3, 8, 2))
sketch9.addConstraint(Sketcher.Constraint("Horizontal", 8, 2, 10, 2))
sketch9.addConstraint(Sketcher.Constraint("Horizontal", 10, 2, 21, 2))
sketch9.addConstraint(Sketcher.Constraint("Horizontal", 21, 2, 23, 2))
sketch9.addConstraint(Sketcher.Constraint("Vertical", 5, 3, 15, 3))
sketch9.addConstraint(Sketcher.Constraint("Vertical", 19, 3, 9, 2))
sketch9.addConstraint(Sketcher.Constraint("Vertical", 11, 2, 20, 2))
sketch9.addConstraint(Sketcher.Constraint("Radius", 1, 0.875))
sketch9.addConstraint(Sketcher.Constraint("DistanceX", 1, 3, 3, 3, 15.0))
sketch9.addConstraint(Sketcher.Constraint("DistanceY", -1, 1, 11, 2, 121.271301))
sketch9.addConstraint(Sketcher.Constraint("DistanceX", 12, 2, 8, 2, 7.124101))
sketch9.addConstraint(Sketcher.Constraint("DistanceX", 13, 3, -1, 1, 16.975221))
sketch9.addConstraint(Sketcher.Constraint("DistanceX", 17, 3, -1, 1, 29.014709))
sketch9.addConstraint(Sketcher.Constraint("DistanceX", 21, 2, -1, 1, 18.212658))
pocket7 = doc.addObject("PartDesign::Pocket", "Pocket006")
body.addObject(pocket7)
pocket7.Profile = sketch9
pocket7.Length = 1.75
pocket7.Reversed = True

sketch10 = doc.addObject("Sketcher::SketchObject", "Sketch009")
body.addObject(sketch10)
sketch10.AttachmentSupport = (doc.XZ_Plane, [""])
sketch10.MapMode = "FlatFace"
sketch10.AttachmentOffset = App.Placement(App.Vector(0, 0, 24.720706), App.Rotation())
sketch10.addGeometry(Part.LineSegment(App.Vector(-0.994965, 168.033864, 0), App.Vector(-44.994965, 168.033864, 0)), False)
sketch10.addGeometry(Part.LineSegment(App.Vector(-44.994965, 168.033864, 0), App.Vector(-44.994965, 102.033864, 0)), False)
sketch10.addGeometry(Part.LineSegment(App.Vector(-44.994965, 102.033864, 0), App.Vector(49.005035, 102.033864, 0)), False)
sketch10.addGeometry(Part.LineSegment(App.Vector(49.005035, 102.033864, 0), App.Vector(49.005035, 115.033864, 0)), False)
sketch10.addGeometry(Part.LineSegment(App.Vector(49.005035, 115.033864, 0), App.Vector(-0.994965, 115.033864, 0)), False)
sketch10.addGeometry(Part.LineSegment(App.Vector(-0.994965, 115.033864, 0), App.Vector(-0.994965, 168.033864, 0)), False)
sketch10.addConstraint(Sketcher.Constraint("Coincident", 0, 2, 1, 1))
sketch10.addConstraint(Sketcher.Constraint("Coincident", 1, 2, 2, 1))
sketch10.addConstraint(Sketcher.Constraint("Coincident", 2, 2, 3, 1))
sketch10.addConstraint(Sketcher.Constraint("Coincident", 3, 2, 4, 1))
sketch10.addConstraint(Sketcher.Constraint("Coincident", 4, 2, 5, 1))
sketch10.addConstraint(Sketcher.Constraint("Coincident", 5, 2, 0, 1))
sketch10.addConstraint(Sketcher.Constraint("Horizontal", 0))
sketch10.addConstraint(Sketcher.Constraint("Vertical", 1))
sketch10.addConstraint(Sketcher.Constraint("Horizontal", 2))
sketch10.addConstraint(Sketcher.Constraint("Vertical", 3))
sketch10.addConstraint(Sketcher.Constraint("Horizontal", 4))
sketch10.addConstraint(Sketcher.Constraint("Vertical", 5))
sketch10.addConstraint(Sketcher.Constraint("DistanceX", 0, 2, 0, 1, 44.0))
sketch10.addConstraint(Sketcher.Constraint("DistanceX", 2, 1, 2, 2, 94.0))
sketch10.addConstraint(Sketcher.Constraint("DistanceY", 1, 2, 1, 1, 66.0))
sketch10.addConstraint(Sketcher.Constraint("DistanceY", 3, 1, 3, 2, 13.0))
sketch10.addConstraint(Sketcher.Constraint("DistanceX", 0, 2, -1, 1, 44.994965))
sketch10.addConstraint(Sketcher.Constraint("DistanceY", -1, 1, 0, 2, 168.033864))
pocket8 = doc.addObject("PartDesign::Pocket", "Pocket007")
body.addObject(pocket8)
pocket8.Profile = sketch10
pocket8.Length = 14.05

sketch11 = doc.addObject("Sketcher::SketchObject", "Sketch010")
body.addObject(sketch11)
sketch11.AttachmentSupport = (doc.XZ_Plane, [""])
sketch11.MapMode = "FlatFace"
sketch11.AttachmentOffset = App.Placement(App.Vector(0, 0, 5.670706), App.Rotation())
sketch11.addGeometry(Part.LineSegment(App.Vector(21.613125, 17.622778, 0), App.Vector(21.613125, 52.444951, 0)), False)
sketch11.addGeometry(Part.LineSegment(App.Vector(21.613125, 52.444951, 0), App.Vector(47.005035, 52.444951, 0)), False)
sketch11.addGeometry(Part.LineSegment(App.Vector(47.005035, 52.444951, 0), App.Vector(47.005035, 17.622778, 0)), False)
sketch11.addGeometry(Part.LineSegment(App.Vector(47.005035, 17.622778, 0), App.Vector(21.613125, 17.622778, 0)), False)
sketch11.addConstraint(Sketcher.Constraint("Coincident", 0, 2, 1, 1))
sketch11.addConstraint(Sketcher.Constraint("Coincident", 1, 2, 2, 1))
sketch11.addConstraint(Sketcher.Constraint("Coincident", 2, 2, 3, 1))
sketch11.addConstraint(Sketcher.Constraint("Coincident", 3, 2, 0, 1))
sketch11.addConstraint(Sketcher.Constraint("Vertical", 0))
sketch11.addConstraint(Sketcher.Constraint("Horizontal", 1))
sketch11.addConstraint(Sketcher.Constraint("Vertical", 2))
sketch11.addConstraint(Sketcher.Constraint("Horizontal", 3))
sketch11.addConstraint(Sketcher.Constraint("DistanceX", 1, 1, 1, 2, 25.39191))
sketch11.addConstraint(Sketcher.Constraint("DistanceY", 0, 1, 0, 2, 34.822173))
sketch11.addConstraint(Sketcher.Constraint("DistanceY", -1, 1, 0, 2, 52.444951))
sketch11.addConstraint(Sketcher.Constraint("DistanceX", -1, 1, 0, 2, 21.613125))
pocket9 = doc.addObject("PartDesign::Pocket", "Pocket008")
body.addObject(pocket9)
pocket9.Profile = sketch11
pocket9.Type = "UpToFirst"
pocket9.Reversed = True

doc.recompute()
